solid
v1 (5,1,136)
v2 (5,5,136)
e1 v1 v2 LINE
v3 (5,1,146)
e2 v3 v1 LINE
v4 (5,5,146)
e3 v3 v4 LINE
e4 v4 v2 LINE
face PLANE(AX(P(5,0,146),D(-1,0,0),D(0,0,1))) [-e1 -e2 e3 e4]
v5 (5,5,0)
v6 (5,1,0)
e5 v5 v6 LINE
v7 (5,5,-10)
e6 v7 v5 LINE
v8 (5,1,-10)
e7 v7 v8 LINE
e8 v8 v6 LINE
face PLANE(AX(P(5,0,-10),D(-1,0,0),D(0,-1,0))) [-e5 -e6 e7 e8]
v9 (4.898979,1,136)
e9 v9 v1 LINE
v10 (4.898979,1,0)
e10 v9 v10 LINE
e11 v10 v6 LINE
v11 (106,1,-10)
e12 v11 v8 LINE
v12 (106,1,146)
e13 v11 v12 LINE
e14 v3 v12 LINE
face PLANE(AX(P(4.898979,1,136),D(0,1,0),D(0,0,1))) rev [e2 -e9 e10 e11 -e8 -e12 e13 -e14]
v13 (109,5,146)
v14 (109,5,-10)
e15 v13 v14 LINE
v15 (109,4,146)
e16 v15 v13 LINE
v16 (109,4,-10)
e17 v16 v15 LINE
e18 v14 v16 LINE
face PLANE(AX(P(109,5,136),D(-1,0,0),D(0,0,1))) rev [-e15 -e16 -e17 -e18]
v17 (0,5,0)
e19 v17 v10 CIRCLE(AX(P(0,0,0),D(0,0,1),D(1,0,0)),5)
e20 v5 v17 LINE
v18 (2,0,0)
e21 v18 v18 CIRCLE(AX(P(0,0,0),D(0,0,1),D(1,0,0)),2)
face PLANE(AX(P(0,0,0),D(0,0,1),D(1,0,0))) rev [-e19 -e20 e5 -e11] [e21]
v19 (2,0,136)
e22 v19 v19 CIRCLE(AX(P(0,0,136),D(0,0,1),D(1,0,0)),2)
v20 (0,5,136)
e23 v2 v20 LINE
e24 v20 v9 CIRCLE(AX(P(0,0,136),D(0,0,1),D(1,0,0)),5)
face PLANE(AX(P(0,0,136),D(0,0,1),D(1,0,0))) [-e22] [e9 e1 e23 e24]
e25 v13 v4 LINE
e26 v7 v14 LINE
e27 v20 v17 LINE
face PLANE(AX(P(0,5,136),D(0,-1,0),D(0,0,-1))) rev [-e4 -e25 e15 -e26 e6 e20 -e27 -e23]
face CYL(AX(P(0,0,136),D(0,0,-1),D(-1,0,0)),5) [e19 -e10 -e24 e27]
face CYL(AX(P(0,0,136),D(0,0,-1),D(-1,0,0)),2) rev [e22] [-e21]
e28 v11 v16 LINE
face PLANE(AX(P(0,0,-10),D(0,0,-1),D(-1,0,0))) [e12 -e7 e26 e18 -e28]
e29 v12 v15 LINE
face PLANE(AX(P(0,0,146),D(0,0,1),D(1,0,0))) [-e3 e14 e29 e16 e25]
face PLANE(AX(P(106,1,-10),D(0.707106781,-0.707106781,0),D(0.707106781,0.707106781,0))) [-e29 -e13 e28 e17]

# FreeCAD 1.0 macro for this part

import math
import FreeCAD as App
import Part
import Sketcher


def add_polygon(sketch, points):
    """Adds a closed chain of lines whose ends are joined by coincident constraints."""
    first, n = sketch.GeometryCount, len(points)
    for a, b in zip(points, points[1:] + points[:1]):
        sketch.addGeometry(Part.LineSegment(App.Vector(*a, 0), App.Vector(*b, 0)), False)
    for i in range(n):
        sketch.addConstraint(Sketcher.Constraint("Coincident", first + i, 2, first + (i + 1) % n, 1))

doc = App.newDocument("Part")
body = doc.addObject("PartDesign::Body", "Body")

# Sketch on XY plane
sketch1 = body.newObject("Sketcher::SketchObject", "Sketch")
sketch1.AttachmentSupport = (doc.getObject("XY_Plane"), [""])
sketch1.MapMode = "FlatFace"
sketch1.addGeometry(Part.LineSegment(App.Vector(109, 5, 0), App.Vector(0, 5, 0)), False)
sketch1.addGeometry(Part.ArcOfCircle(Part.Circle(App.Vector(0, 0, 0), App.Vector(0, 0, 1), 5), math.radians(90), math.radians(372)), False)
sketch1.addGeometry(Part.LineSegment(App.Vector(4.9, 1, 0), App.Vector(109, 1, 0)), False)
sketch1.addGeometry(Part.LineSegment(App.Vector(109, 1, 0), App.Vector(109, 5, 0)), False)
sketch1.addGeometry(Part.Circle(App.Vector(0, 0, 0), App.Vector(0, 0, 1), 2), False)
sketch1.addConstraint(Sketcher.Constraint("Tangent", 0, 2, 1, 1))
sketch1.addConstraint(Sketcher.Constraint("Coincident", 1, 2, 2, 1))
sketch1.addConstraint(Sketcher.Constraint("Coincident", 2, 2, 3, 1))
sketch1.addConstraint(Sketcher.Constraint("Coincident", 3, 2, 0, 1))
sketch1.addConstraint(Sketcher.Constraint("Horizontal", 0))
sketch1.addConstraint(Sketcher.Constraint("Horizontal", 2))
sketch1.addConstraint(Sketcher.Constraint("Vertical", 3))
sketch1.addConstraint(Sketcher.Constraint("Coincident", 1, 3, -1, 1))
sketch1.addConstraint(Sketcher.Constraint("Coincident", 4, 3, -1, 1))
sketch1.addConstraint(Sketcher.Constraint("Diameter", 4, 4.0))
sketch1.addConstraint(Sketcher.Constraint("Radius", 1, 5.0))
sketch1.addConstraint(Sketcher.Constraint("DistanceX", 0, 2, 0, 1, 109.0))
sketch1.addConstraint(Sketcher.Constraint("DistanceY", 3, 1, 3, 2, 4.0))
pad1 = body.newObject("PartDesign::Pad", "Pad")
pad1.Profile = sketch1
pad1.Length = 136

# Sketch on XY plane
sketch2 = body.newObject("Sketcher::SketchObject", "Sketch001")
sketch2.AttachmentSupport = (doc.getObject("XY_Plane"), [""])
sketch2.MapMode = "FlatFace"
sketch2.AttachmentOffset = App.Placement(App.Vector(0, 0, 136), App.Rotation())
add_polygon(sketch2, [(5, 5), (5, 1), (109, 1), (109, 5)])  # lines 0-3
sketch2.addConstraint(Sketcher.Constraint("Vertical", 0))
sketch2.addConstraint(Sketcher.Constraint("Horizontal", 1))
sketch2.addConstraint(Sketcher.Constraint("Vertical", 2))
sketch2.addConstraint(Sketcher.Constraint("Horizontal", 3))
sketch2.addConstraint(Sketcher.Constraint("DistanceX", 1, 1, 1, 2, 104.0))
sketch2.addConstraint(Sketcher.Constraint("DistanceY", 0, 2, 0, 1, 4.0))
sketch2.addConstraint(Sketcher.Constraint("DistanceX", -1, 1, 0, 2, 5.0))
sketch2.addConstraint(Sketcher.Constraint("DistanceY", -1, 1, 0, 2, 1.0))
pad2 = body.newObject("PartDesign::Pad", "Pad001")
pad2.Profile = sketch2
pad2.Length = 10

# Sketch on XY plane
sketch3 = body.newObject("Sketcher::SketchObject", "Sketch002")
sketch3.AttachmentSupport = (doc.getObject("XY_Plane"), [""])
sketch3.MapMode = "FlatFace"
add_polygon(sketch3, [(109, 5), (109, 1), (5, 1), (5, 5)])  # lines 0-3
sketch3.addConstraint(Sketcher.Constraint("Vertical", 0))
sketch3.addConstraint(Sketcher.Constraint("Horizontal", 1))
sketch3.addConstraint(Sketcher.Constraint("Vertical", 2))
sketch3.addConstraint(Sketcher.Constraint("Horizontal", 3))
sketch3.addConstraint(Sketcher.Constraint("DistanceX", 1, 2, 1, 1, 104.0))
sketch3.addConstraint(Sketcher.Constraint("DistanceY", 0, 2, 0, 1, 4.0))
sketch3.addConstraint(Sketcher.Constraint("DistanceX", -1, 1, 0, 2, 109.0))
sketch3.addConstraint(Sketcher.Constraint("DistanceY", -1, 1, 0, 2, 1.0))
pad3 = body.newObject("PartDesign::Pad", "Pad002")
pad3.Profile = sketch3
pad3.Length = 10
pad3.Reversed = True

# Sketch on XY plane
sketch4 = body.newObject("Sketcher::SketchObject", "Sketch003")
sketch4.AttachmentSupport = (doc.getObject("XY_Plane"), [""])
sketch4.MapMode = "FlatFace"
sketch4.AttachmentOffset = App.Placement(App.Vector(0, 0, 146), App.Rotation())
add_polygon(sketch4, [(109, 4), (106, 1), (109, 1)])  # lines 0-2
sketch4.addConstraint(Sketcher.Constraint("Horizontal", 1))
sketch4.addConstraint(Sketcher.Constraint("Vertical", 2))
sketch4.addConstraint(Sketcher.Constraint("Equal", 1, 2))
sketch4.addConstraint(Sketcher.Constraint("DistanceX", 1, 1, 1, 2, 3.0))
sketch4.addConstraint(Sketcher.Constraint("DistanceX", -1, 1, 0, 2, 106.0))
sketch4.addConstraint(Sketcher.Constraint("DistanceY", -1, 1, 0, 2, 1.0))
pocket1 = body.newObject("PartDesign::Pocket", "Pocket")
pocket1.Profile = sketch4
pocket1.Type = "ThroughAll"

doc.recompute()
